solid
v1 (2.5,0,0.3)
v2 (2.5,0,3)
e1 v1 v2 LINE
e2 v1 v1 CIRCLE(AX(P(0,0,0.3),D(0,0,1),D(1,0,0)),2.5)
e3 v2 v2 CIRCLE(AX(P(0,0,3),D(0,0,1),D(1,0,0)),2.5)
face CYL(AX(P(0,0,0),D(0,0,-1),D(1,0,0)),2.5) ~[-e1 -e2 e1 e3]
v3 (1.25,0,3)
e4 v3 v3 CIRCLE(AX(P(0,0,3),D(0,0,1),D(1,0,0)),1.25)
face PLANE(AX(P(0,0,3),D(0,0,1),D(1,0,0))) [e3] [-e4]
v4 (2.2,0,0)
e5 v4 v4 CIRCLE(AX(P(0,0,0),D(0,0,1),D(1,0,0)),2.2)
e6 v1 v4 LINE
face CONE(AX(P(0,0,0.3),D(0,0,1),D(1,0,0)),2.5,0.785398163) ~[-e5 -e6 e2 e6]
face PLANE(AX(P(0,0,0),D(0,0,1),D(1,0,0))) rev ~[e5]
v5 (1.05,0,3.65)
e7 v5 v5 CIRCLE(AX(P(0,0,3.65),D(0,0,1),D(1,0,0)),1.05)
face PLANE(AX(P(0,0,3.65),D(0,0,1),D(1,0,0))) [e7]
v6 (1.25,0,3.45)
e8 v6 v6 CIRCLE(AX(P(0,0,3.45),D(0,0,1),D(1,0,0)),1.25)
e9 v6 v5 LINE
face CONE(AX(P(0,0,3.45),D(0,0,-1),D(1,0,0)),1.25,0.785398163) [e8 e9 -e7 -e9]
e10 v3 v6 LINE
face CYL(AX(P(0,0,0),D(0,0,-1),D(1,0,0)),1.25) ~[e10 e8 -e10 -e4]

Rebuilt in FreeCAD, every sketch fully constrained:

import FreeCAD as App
import Part
import Sketcher
from FreeCAD import Vector
Q = App.Units.Quantity


def edges_at(feature, points):
    """Names of the edges that pass closest to the given points."""
    edges = feature.Shape.Edges
    near = lambda p: min(range(len(edges)), key=lambda i: edges[i].distToShape(Part.Vertex(*p))[0])
    return sorted({f"Edge{near(p) + 1}" for p in points})

doc = App.newDocument("Part")
body = doc.addObject("PartDesign::Body", "Body")

# Sketch on XY plane
sketch1 = body.newObject("Sketcher::SketchObject", "Sketch")
sketch1.AttachmentSupport = (doc.getObject("XY_Plane"), [""])
sketch1.MapMode = "FlatFace"
sketch1.addGeometry([
    Part.Circle(Vector(0, 0, 0), Vector(0, 0, 1), 2.5),
    Part.Circle(Vector(0, 0, 0), Vector(0, 0, 1), 1.2),
], False)
sketch1.addConstraint([
    Sketcher.Constraint("Coincident", 0, 3, -1, 1),
    Sketcher.Constraint("Coincident", 1, 3, -1, 1),
    Sketcher.Constraint("Diameter", 0, Q("5 mm")),
    Sketcher.Constraint("Diameter", 1, Q("2.5 mm")),
])
pad1 = body.newObject("PartDesign::Pad", "Pad")
pad1.Profile = sketch1
pad1.Length = 3

# Sketch on XY plane
sketch2 = body.newObject("Sketcher::SketchObject", "Sketch001")
sketch2.AttachmentSupport = (doc.getObject("XY_Plane"), [""])
sketch2.MapMode = "FlatFace"
sketch2.addGeometry(Part.Circle(Vector(0, 0, 0), Vector(0, 0, 1), 1.2), False)
sketch2.addConstraint([
    Sketcher.Constraint("Coincident", 0, 3, -1, 1),
    Sketcher.Constraint("Diameter", 0, Q("2.5 mm")),
])
pad2 = body.newObject("PartDesign::Pad", "Pad001")
pad2.Profile = sketch2
pad2.Length = 3.65
doc.recompute()

chamfer = body.newObject("PartDesign::Chamfer", "Chamfer")
chamfer.Base = (pad2, edges_at(pad2, [(-2.331, -0.904, 0)]))
chamfer.Size = 0.3
doc.recompute()

chamfer2 = body.newObject("PartDesign::Chamfer", "Chamfer001")
chamfer2.Base = (chamfer, edges_at(chamfer, [(-1.165, -0.452, 3.65)]))
chamfer2.Size = 0.2

doc.recompute()
